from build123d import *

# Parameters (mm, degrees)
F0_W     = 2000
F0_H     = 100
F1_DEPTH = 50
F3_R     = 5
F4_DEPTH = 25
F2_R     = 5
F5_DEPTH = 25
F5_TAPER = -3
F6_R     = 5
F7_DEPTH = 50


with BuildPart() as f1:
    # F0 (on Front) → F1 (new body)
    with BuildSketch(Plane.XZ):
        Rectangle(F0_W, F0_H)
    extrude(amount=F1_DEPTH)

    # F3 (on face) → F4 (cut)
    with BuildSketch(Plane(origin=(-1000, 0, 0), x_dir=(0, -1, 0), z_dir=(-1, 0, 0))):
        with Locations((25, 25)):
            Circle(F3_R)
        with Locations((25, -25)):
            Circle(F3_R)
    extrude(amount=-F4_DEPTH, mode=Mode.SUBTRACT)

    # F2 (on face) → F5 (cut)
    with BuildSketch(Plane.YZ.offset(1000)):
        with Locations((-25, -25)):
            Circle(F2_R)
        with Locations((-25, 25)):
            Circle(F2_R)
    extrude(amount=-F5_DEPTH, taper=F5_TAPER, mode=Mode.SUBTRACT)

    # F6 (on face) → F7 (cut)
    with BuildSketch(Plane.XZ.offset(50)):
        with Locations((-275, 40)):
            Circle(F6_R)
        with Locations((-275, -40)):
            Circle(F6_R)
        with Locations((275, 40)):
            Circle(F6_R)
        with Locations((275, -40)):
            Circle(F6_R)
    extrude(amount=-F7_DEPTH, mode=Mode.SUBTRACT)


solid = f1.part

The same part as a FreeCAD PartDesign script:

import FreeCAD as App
import Part
import Sketcher

V = App.Vector


def add_polygon(sketch, points):
    """Adds a closed chain of lines whose ends are joined by coincident constraints."""
    first, n = sketch.GeometryCount, len(points)
    for a, b in zip(points, points[1:] + points[:1]):
        sketch.addGeometry(Part.LineSegment(App.Vector(*a, 0), App.Vector(*b, 0)), False)
    for i in range(n):
        sketch.addConstraint(Sketcher.Constraint("Coincident", first + i, 2, first + (i + 1) % n, 1))

doc = App.newDocument("Part")
body = doc.addObject("PartDesign::Body", "Body")

# Sketch on XZ plane
sketch1 = body.newObject("Sketcher::SketchObject", "Sketch")
sketch1.AttachmentSupport = (doc.getObject("XZ_Plane"), [""])
sketch1.MapMode = "FlatFace"
add_polygon(sketch1, [(-1000, 50), (-1000, -50), (1000, -50), (1000, 50)])  # lines 0-3
sketch1.addConstraint([
    Sketcher.Constraint("Vertical", 0),
    Sketcher.Constraint("Horizontal", 1),
    Sketcher.Constraint("Vertical", 2),
    Sketcher.Constraint("Horizontal", 3),
    Sketcher.Constraint("Symmetric", 0, 2, 2, 2, -1, 1),
    Sketcher.Constraint("DistanceX", 1, 1, 1, 2, 2000.0),
    Sketcher.Constraint("DistanceY", 0, 2, 0, 1, 100.0),
])
pad1 = body.newObject("PartDesign::Pad", "Pad")
pad1.Profile = sketch1
pad1.Length = 50

# Sketch on YZ plane
sketch2 = body.newObject("Sketcher::SketchObject", "Sketch001")
sketch2.AttachmentSupport = (doc.getObject("YZ_Plane"), [""])
sketch2.MapMode = "FlatFace"
sketch2.AttachmentOffset = App.Placement(V(0, 0, -1000), App.Rotation())
sketch2.addGeometry([
    Part.Circle(V(-25, 25, 0), V(0, 0, 1), 5),
    Part.Circle(V(-25, -25, 0), V(0, 0, 1), 5),
], False)
sketch2.addConstraint([
    Sketcher.Constraint("Equal", 0, 1),
    Sketcher.Constraint("Symmetric", 0, 3, 1, 3, -1),
    Sketcher.Constraint("Diameter", 0, 10.0),
    Sketcher.Constraint("DistanceX", 0, 3, -1, 1, 25.0),
    Sketcher.Constraint("DistanceY", -1, 1, 0, 3, 25.0),
])
pocket1 = body.newObject("PartDesign::Pocket", "Pocket")
pocket1.Profile = sketch2
pocket1.Length = 25
pocket1.Reversed = True

# Sketch on YZ plane
sketch3 = body.newObject("Sketcher::SketchObject", "Sketch002")
sketch3.AttachmentSupport = (doc.getObject("YZ_Plane"), [""])
sketch3.MapMode = "FlatFace"
sketch3.AttachmentOffset = App.Placement(V(0, 0, 1000), App.Rotation())
sketch3.addGeometry([
    Part.Circle(V(-25, -25, 0), V(0, 0, 1), 5),
    Part.Circle(V(-25, 25, 0), V(0, 0, 1), 5),
], False)
sketch3.addConstraint([
    Sketcher.Constraint("Equal", 0, 1),
    Sketcher.Constraint("Symmetric", 0, 3, 1, 3, -1),
    Sketcher.Constraint("Diameter", 0, 10.0),
    Sketcher.Constraint("DistanceX", 0, 3, -1, 1, 25.0),
    Sketcher.Constraint("DistanceY", 0, 3, -1, 1, 25.0),
])
pocket2 = body.newObject("PartDesign::Pocket", "Pocket001")
pocket2.Profile = sketch3
pocket2.Length = 25
pocket2.TaperAngle = 3

# Sketch on XZ plane
sketch4 = body.newObject("Sketcher::SketchObject", "Sketch003")
sketch4.AttachmentSupport = (doc.getObject("XZ_Plane"), [""])
sketch4.MapMode = "FlatFace"
sketch4.AttachmentOffset = App.Placement(V(0, 0, 50), App.Rotation())
sketch4.addGeometry([
    Part.Circle(V(-275, 40, 0), V(0, 0, 1), 5),
    Part.Circle(V(-275, -40, 0), V(0, 0, 1), 5),
    Part.Circle(V(275, 40, 0), V(0, 0, 1), 5),
    Part.Circle(V(275, -40, 0), V(0, 0, 1), 5),
], False)
sketch4.addConstraint([
    Sketcher.Constraint("Equal", 0, 1),
    Sketcher.Constraint("Equal", 1, 2),
    Sketcher.Constraint("Equal", 2, 3),
    Sketcher.Constraint("Symmetric", 1, 3, 2, 3, -1, 1),
    Sketcher.Constraint("Symmetric", 0, 3, 3, 3, -1, 1),
    Sketcher.Constraint("Symmetric", 0, 3, 2, 3, -2),
    Sketcher.Constraint("Diameter", 0, 10.0),
    Sketcher.Constraint("DistanceX", 0, 3, -1, 1, 275.0),
    Sketcher.Constraint("DistanceY", -1, 1, 0, 3, 40.0),
])
pocket3 = body.newObject("PartDesign::Pocket", "Pocket002")
pocket3.Profile = sketch4
pocket3.Length = 50

doc.recompute()
